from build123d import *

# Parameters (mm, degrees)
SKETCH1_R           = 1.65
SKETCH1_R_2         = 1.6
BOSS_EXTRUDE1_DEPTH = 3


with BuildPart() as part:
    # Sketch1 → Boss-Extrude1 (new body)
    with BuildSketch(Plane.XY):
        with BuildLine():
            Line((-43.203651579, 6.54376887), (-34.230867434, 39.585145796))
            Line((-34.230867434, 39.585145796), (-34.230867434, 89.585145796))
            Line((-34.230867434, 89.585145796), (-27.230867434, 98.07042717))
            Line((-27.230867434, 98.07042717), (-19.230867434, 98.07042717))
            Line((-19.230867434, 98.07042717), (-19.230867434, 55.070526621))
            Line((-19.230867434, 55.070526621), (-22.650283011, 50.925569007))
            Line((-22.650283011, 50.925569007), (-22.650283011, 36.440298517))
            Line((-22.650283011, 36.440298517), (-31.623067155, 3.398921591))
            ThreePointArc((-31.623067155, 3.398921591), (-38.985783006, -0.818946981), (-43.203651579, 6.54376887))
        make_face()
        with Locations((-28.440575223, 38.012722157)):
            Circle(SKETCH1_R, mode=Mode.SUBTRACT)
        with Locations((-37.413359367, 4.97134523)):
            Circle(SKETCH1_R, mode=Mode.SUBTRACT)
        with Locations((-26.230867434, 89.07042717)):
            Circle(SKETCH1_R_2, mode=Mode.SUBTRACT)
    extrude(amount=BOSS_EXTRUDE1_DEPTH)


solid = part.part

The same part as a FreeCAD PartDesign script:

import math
import FreeCAD as App
import Part
import Sketcher

doc = App.newDocument("Part")
body = doc.addObject("PartDesign::Body", "Body")

# Sketch on XY plane
sketch1 = body.newObject("Sketcher::SketchObject", "Sketch")
sketch1.AttachmentSupport = (doc.getObject("XY_Plane"), [""])
sketch1.MapMode = "FlatFace"
sketch1.addGeometry(Part.LineSegment(App.Vector(-34.2, 39.6, 0), App.Vector(-43.2, 6.5, 0)), False)
sketch1.addGeometry(Part.ArcOfCircle(Part.Circle(App.Vector(-37.4, 5, 0), App.Vector(0, 0, 1), 6), math.radians(165), math.radians(345)), False)
sketch1.addGeometry(Part.LineSegment(App.Vector(-31.6, 3.4, 0), App.Vector(-22.7, 36.4, 0)), False)
sketch1.addGeometry(Part.LineSegment(App.Vector(-22.7, 36.4, 0), App.Vector(-22.7, 50.9, 0)), False)
sketch1.addGeometry(Part.LineSegment(App.Vector(-22.7, 50.9, 0), App.Vector(-19.2, 55.1, 0)), False)
sketch1.addGeometry(Part.LineSegment(App.Vector(-19.2, 55.1, 0), App.Vector(-19.2, 98.1, 0)), False)
sketch1.addGeometry(Part.LineSegment(App.Vector(-19.2, 98.1, 0), App.Vector(-27.2, 98.1, 0)), False)
sketch1.addGeometry(Part.LineSegment(App.Vector(-27.2, 98.1, 0), App.Vector(-34.2, 89.6, 0)), False)
sketch1.addGeometry(Part.LineSegment(App.Vector(-34.2, 89.6, 0), App.Vector(-34.2, 39.6, 0)), False)
sketch1.addGeometry(Part.Circle(App.Vector(-28.4, 38, 0), App.Vector(0, 0, 1), 1.6), False)
sketch1.addGeometry(Part.Circle(App.Vector(-37.4, 5, 0), App.Vector(0, 0, 1), 1.6), False)
sketch1.addGeometry(Part.Circle(App.Vector(-26.2, 89.1, 0), App.Vector(0, 0, 1), 1.6), False)
sketch1.addConstraint(Sketcher.Constraint("Tangent", 0, 2, 1, 1))
sketch1.addConstraint(Sketcher.Constraint("Tangent", 1, 2, 2, 1))
sketch1.addConstraint(Sketcher.Constraint("Coincident", 2, 2, 3, 1))
sketch1.addConstraint(Sketcher.Constraint("Coincident", 3, 2, 4, 1))
sketch1.addConstraint(Sketcher.Constraint("Coincident", 4, 2, 5, 1))
sketch1.addConstraint(Sketcher.Constraint("Coincident", 5, 2, 6, 1))
sketch1.addConstraint(Sketcher.Constraint("Coincident", 6, 2, 7, 1))
sketch1.addConstraint(Sketcher.Constraint("Coincident", 7, 2, 8, 1))
sketch1.addConstraint(Sketcher.Constraint("Coincident", 8, 2, 0, 1))
sketch1.addConstraint(Sketcher.Constraint("Vertical", 3))
sketch1.addConstraint(Sketcher.Constraint("Vertical", 5))
sketch1.addConstraint(Sketcher.Constraint("Horizontal", 6))
sketch1.addConstraint(Sketcher.Constraint("Vertical", 8))
sketch1.addConstraint(Sketcher.Constraint("Coincident", 10, 3, 1, 3))
sketch1.addConstraint(Sketcher.Constraint("Equal", 9, 10))
sketch1.addConstraint(Sketcher.Constraint("Parallel", 0, 2))
sketch1.addConstraint(Sketcher.Constraint("Parallel", 4, 7))
sketch1.addConstraint(Sketcher.Constraint("Equal", 0, 2))
sketch1.addConstraint(Sketcher.Constraint("Radius", 1, 6.0))
sketch1.addConstraint(Sketcher.Constraint("Diameter", 9, 3.3))
sketch1.addConstraint(Sketcher.Constraint("Diameter", 11, 3.2))
sketch1.addConstraint(Sketcher.Constraint("DistanceX", 6, 2, 6, 1, 8.0))
sketch1.addConstraint(Sketcher.Constraint("DistanceY", 8, 2, 8, 1, 50.0))
sketch1.addConstraint(Sketcher.Constraint("Distance", 7, 11.0))
sketch1.addConstraint(Sketcher.Constraint("DistanceX", 11, 3, 4, 2, 7.0))
sketch1.addConstraint(Sketcher.Constraint("DistanceY", 11, 3, 5, 2, 9.0))
sketch1.addConstraint(Sketcher.Constraint("DistanceX", 7, 2, 11, 3, 8.0))
sketch1.addConstraint(Sketcher.Constraint("DistanceY", 5, 1, 5, 2, 42.999901))
sketch1.addConstraint(Sketcher.Constraint("DistanceY", 3, 1, 3, 2, 14.48527))
sketch1.addConstraint(Sketcher.Constraint("DistanceY", -1, 1, 2, 2, 36.440299))
sketch1.addConstraint(Sketcher.Constraint("DistanceY", 1, 2, 9, 3, 34.613801))
sketch1.addConstraint(Sketcher.Constraint("DistanceX", 1, 2, 11, 3, 5.3922))
sketch1.addConstraint(Sketcher.Constraint("DistanceX", 1, 3, -1, 1, 37.413359))
sketch1.addConstraint(Sketcher.Constraint("DistanceX", 1, 2, 9, 3, 3.182492))
pad1 = body.newObject("PartDesign::Pad", "Pad")
pad1.Profile = sketch1
pad1.Length = 3

doc.recompute()
